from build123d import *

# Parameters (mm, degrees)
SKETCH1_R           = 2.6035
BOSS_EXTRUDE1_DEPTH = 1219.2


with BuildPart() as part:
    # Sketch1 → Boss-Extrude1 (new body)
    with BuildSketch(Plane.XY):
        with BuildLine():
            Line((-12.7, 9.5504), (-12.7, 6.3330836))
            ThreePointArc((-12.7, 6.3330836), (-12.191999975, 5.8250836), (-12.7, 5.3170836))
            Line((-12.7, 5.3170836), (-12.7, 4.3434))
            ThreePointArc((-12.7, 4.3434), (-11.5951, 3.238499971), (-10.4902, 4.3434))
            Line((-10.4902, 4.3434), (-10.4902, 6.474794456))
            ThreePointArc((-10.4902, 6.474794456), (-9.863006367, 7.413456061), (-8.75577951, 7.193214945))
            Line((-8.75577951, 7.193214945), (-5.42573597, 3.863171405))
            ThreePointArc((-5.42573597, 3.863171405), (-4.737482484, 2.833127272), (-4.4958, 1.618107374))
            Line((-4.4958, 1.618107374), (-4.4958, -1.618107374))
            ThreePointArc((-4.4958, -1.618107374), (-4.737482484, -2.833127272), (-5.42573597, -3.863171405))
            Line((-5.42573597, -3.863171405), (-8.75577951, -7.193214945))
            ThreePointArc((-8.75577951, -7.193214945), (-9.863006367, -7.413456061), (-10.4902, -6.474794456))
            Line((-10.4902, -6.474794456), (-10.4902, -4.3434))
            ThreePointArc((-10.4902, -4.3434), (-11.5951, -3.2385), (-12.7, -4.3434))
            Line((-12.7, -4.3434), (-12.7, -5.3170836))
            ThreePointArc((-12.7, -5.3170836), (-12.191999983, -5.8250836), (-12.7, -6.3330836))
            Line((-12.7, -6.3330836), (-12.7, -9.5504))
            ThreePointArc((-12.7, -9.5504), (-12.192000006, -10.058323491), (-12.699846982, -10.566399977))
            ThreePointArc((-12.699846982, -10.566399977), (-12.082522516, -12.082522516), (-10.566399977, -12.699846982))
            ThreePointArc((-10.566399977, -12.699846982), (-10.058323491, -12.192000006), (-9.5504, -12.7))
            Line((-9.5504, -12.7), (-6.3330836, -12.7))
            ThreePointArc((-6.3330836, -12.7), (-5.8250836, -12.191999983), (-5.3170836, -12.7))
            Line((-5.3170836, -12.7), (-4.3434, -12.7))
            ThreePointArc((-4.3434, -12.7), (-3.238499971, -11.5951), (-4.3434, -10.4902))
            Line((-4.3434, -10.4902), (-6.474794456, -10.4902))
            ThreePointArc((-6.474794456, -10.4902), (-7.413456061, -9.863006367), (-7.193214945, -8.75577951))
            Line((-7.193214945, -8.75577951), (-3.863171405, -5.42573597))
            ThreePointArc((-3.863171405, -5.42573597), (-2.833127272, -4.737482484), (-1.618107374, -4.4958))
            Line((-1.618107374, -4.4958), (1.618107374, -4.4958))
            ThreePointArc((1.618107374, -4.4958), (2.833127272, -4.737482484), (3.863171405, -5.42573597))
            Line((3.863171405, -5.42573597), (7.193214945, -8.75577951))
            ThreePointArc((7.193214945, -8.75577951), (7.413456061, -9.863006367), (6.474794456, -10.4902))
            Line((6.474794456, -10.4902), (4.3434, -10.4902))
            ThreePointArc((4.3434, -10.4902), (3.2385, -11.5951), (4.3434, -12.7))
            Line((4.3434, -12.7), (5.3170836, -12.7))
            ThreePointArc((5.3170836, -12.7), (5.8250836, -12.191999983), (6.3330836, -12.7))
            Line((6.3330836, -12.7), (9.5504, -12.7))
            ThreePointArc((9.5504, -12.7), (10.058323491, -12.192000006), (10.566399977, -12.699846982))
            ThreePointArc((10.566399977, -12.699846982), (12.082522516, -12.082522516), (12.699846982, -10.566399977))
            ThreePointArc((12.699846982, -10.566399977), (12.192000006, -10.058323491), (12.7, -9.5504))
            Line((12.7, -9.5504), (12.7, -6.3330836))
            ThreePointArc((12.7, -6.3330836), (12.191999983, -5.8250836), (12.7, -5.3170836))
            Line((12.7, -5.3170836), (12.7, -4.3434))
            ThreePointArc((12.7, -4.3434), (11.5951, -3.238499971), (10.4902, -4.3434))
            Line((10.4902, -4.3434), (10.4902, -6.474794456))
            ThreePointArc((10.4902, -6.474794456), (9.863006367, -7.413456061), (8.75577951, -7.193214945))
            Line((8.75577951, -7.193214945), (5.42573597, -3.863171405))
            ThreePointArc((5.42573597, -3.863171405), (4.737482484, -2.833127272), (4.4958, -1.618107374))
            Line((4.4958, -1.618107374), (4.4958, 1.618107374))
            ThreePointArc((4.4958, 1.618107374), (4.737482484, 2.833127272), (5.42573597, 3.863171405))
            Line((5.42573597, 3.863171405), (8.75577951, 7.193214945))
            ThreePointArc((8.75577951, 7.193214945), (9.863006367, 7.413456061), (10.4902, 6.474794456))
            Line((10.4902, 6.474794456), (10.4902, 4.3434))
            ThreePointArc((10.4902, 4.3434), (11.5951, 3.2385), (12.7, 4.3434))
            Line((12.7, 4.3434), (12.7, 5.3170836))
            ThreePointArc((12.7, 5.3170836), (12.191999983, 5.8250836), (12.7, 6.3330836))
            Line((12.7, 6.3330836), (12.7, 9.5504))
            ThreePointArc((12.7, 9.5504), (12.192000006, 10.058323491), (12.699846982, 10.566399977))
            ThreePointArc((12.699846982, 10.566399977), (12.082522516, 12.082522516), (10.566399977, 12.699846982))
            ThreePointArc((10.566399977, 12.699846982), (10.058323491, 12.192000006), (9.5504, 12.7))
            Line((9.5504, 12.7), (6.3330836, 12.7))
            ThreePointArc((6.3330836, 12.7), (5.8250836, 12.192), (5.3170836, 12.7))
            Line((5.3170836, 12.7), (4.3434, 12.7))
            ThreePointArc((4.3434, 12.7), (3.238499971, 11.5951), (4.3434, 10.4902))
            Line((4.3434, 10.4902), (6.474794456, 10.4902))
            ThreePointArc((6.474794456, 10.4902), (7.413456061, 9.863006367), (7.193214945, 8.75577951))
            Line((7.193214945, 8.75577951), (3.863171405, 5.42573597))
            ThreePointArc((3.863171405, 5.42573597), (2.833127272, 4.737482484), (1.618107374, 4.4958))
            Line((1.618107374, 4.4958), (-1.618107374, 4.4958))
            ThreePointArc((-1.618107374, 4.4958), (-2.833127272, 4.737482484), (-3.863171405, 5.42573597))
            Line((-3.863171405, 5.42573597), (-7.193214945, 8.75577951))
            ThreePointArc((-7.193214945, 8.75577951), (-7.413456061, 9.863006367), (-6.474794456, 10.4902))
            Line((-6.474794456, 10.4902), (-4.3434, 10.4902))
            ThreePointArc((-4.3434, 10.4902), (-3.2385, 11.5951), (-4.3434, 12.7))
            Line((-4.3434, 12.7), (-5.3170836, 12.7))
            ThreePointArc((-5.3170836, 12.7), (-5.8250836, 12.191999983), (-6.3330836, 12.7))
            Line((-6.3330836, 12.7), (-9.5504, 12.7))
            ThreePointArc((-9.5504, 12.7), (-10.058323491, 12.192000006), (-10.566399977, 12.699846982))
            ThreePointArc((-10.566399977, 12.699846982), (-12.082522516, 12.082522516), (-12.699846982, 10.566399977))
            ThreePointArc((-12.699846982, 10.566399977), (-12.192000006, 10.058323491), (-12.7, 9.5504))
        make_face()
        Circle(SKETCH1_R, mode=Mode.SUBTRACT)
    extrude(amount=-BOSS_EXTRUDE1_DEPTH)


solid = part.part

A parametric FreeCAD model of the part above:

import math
import FreeCAD as App
import Part
import Sketcher

V = App.Vector
Q = App.Units.Quantity

doc = App.newDocument("Part")
body = doc.addObject("PartDesign::Body", "Body")

sketch1 = body.newObject("Sketcher::SketchObject", "Sketch")
sketch1.AttachmentSupport = (doc.getObject("XY_Plane"), [""])
sketch1.MapMode = "FlatFace"
sketch1.addGeometry([
    Part.LineSegment(V(-12.7, 9.6, 0), V(-12.7, 6.3, 0)),
    Part.ArcOfCircle(Part.Circle(V(-12.7, 5.8, 0), V(0, 0, 1), 0.5), math.radians(-90), math.radians(90)),
    Part.LineSegment(V(-12.7, 5.3, 0), V(-12.7, 4.3, 0)),
    Part.ArcOfCircle(Part.Circle(V(-11.6, 4.3, 0), V(0, 0, 1), 1.1), math.radians(180), math.radians(360)),
    Part.LineSegment(V(-10.5, 4.3, 0), V(-10.5, 6.5, 0)),
    Part.ArcOfCircle(Part.Circle(V(-9.5, 6.5, 0), V(0, 0, 1), 1), math.radians(45), math.radians(180)),
    Part.LineSegment(V(-8.8, 7.2, 0), V(-5.4, 3.9, 0)),
    Part.ArcOfCircle(Part.Circle(V(-7.7, 1.6, 0), V(0, 0, 1), 3.2), math.radians(0), math.radians(45)),
    Part.LineSegment(V(-4.5, 1.6, 0), V(-4.5, -1.6, 0)),
    Part.ArcOfCircle(Part.Circle(V(-7.7, -1.6, 0), V(0, 0, 1), 3.2), math.radians(-45), math.radians(0)),
    Part.LineSegment(V(-5.4, -3.9, 0), V(-8.8, -7.2, 0)),
    Part.ArcOfCircle(Part.Circle(V(-9.5, -6.5, 0), V(0, 0, 1), 1), math.radians(180), math.radians(315)),
    Part.LineSegment(V(-10.5, -6.5, 0), V(-10.5, -4.3, 0)),
    Part.ArcOfCircle(Part.Circle(V(-11.6, -4.3, 0), V(0, 0, 1), 1.1), math.radians(0), math.radians(180)),
    Part.LineSegment(V(-12.7, -4.3, 0), V(-12.7, -5.3, 0)),
    Part.ArcOfCircle(Part.Circle(V(-12.7, -5.8, 0), V(0, 0, 1), 0.5), math.radians(-90), math.radians(90)),
    Part.LineSegment(V(-12.7, -6.3, 0), V(-12.7, -9.6, 0)),
    Part.ArcOfCircle(Part.Circle(V(-12.7, -10.1, 0), V(0, 0, 1), 0.5), math.radians(-90), math.radians(90)),
    Part.ArcOfCircle(Part.Circle(V(-10.6, -10.6, 0), V(0, 0, 1), 2.1), math.radians(179), math.radians(271)),
    Part.ArcOfCircle(Part.Circle(V(-10.1, -12.7, 0), V(0, 0, 1), 0.5), math.radians(0), math.radians(180)),
    Part.LineSegment(V(-9.6, -12.7, 0), V(-6.3, -12.7, 0)),
    Part.ArcOfCircle(Part.Circle(V(-5.8, -12.7, 0), V(0, 0, 1), 0.5), math.radians(0), math.radians(180)),
    Part.LineSegment(V(-5.3, -12.7, 0), V(-4.3, -12.7, 0)),
    Part.ArcOfCircle(Part.Circle(V(-4.3, -11.6, 0), V(0, 0, 1), 1.1), math.radians(-90), math.radians(90)),
    Part.LineSegment(V(-4.3, -10.5, 0), V(-6.5, -10.5, 0)),
    Part.ArcOfCircle(Part.Circle(V(-6.5, -9.5, 0), V(0, 0, 1), 1), math.radians(135), math.radians(270)),
    Part.LineSegment(V(-7.2, -8.8, 0), V(-3.9, -5.4, 0)),
    Part.ArcOfCircle(Part.Circle(V(-1.6, -7.7, 0), V(0, 0, 1), 3.2), math.radians(90), math.radians(135)),
    Part.LineSegment(V(-1.6, -4.5, 0), V(1.6, -4.5, 0)),
    Part.ArcOfCircle(Part.Circle(V(1.6, -7.7, 0), V(0, 0, 1), 3.2), math.radians(45), math.radians(90)),
    Part.LineSegment(V(3.9, -5.4, 0), V(7.2, -8.8, 0)),
    Part.ArcOfCircle(Part.Circle(V(6.5, -9.5, 0), V(0, 0, 1), 1), math.radians(-90), math.radians(45)),
    Part.LineSegment(V(6.5, -10.5, 0), V(4.3, -10.5, 0)),
    Part.ArcOfCircle(Part.Circle(V(4.3, -11.6, 0), V(0, 0, 1), 1.1), math.radians(90), math.radians(270)),
    Part.LineSegment(V(4.3, -12.7, 0), V(5.3, -12.7, 0)),
    Part.ArcOfCircle(Part.Circle(V(5.8, -12.7, 0), V(0, 0, 1), 0.5), math.radians(0), math.radians(180)),
    Part.LineSegment(V(6.3, -12.7, 0), V(9.6, -12.7, 0)),
    Part.ArcOfCircle(Part.Circle(V(10.1, -12.7, 0), V(0, 0, 1), 0.5), math.radians(0), math.radians(180)),
    Part.ArcOfCircle(Part.Circle(V(10.6, -10.6, 0), V(0, 0, 1), 2.1), math.radians(-91), math.radians(1)),
    Part.ArcOfCircle(Part.Circle(V(12.7, -10.1, 0), V(0, 0, 1), 0.5), math.radians(90), math.radians(270)),
    Part.LineSegment(V(12.7, -9.6, 0), V(12.7, -6.3, 0)),
    Part.ArcOfCircle(Part.Circle(V(12.7, -5.8, 0), V(0, 0, 1), 0.5), math.radians(90), math.radians(270)),
    Part.LineSegment(V(12.7, -5.3, 0), V(12.7, -4.3, 0)),
    Part.ArcOfCircle(Part.Circle(V(11.6, -4.3, 0), V(0, 0, 1), 1.1), math.radians(0), math.radians(180)),
    Part.LineSegment(V(10.5, -4.3, 0), V(10.5, -6.5, 0)),
    Part.ArcOfCircle(Part.Circle(V(9.5, -6.5, 0), V(0, 0, 1), 1), math.radians(-135), math.radians(0)),
    Part.LineSegment(V(8.8, -7.2, 0), V(5.4, -3.9, 0)),
    Part.ArcOfCircle(Part.Circle(V(7.7, -1.6, 0), V(0, 0, 1), 3.2), math.radians(180), math.radians(225)),
    Part.LineSegment(V(4.5, -1.6, 0), V(4.5, 1.6, 0)),
    Part.ArcOfCircle(Part.Circle(V(7.7, 1.6, 0), V(0, 0, 1), 3.2), math.radians(135), math.radians(180)),
    Part.LineSegment(V(5.4, 3.9, 0), V(8.8, 7.2, 0)),
    Part.ArcOfCircle(Part.Circle(V(9.5, 6.5, 0), V(0, 0, 1), 1), math.radians(0), math.radians(135)),
    Part.LineSegment(V(10.5, 6.5, 0), V(10.5, 4.3, 0)),
    Part.ArcOfCircle(Part.Circle(V(11.6, 4.3, 0), V(0, 0, 1), 1.1), math.radians(180), math.radians(360)),
    Part.LineSegment(V(12.7, 4.3, 0), V(12.7, 5.3, 0)),
    Part.ArcOfCircle(Part.Circle(V(12.7, 5.8, 0), V(0, 0, 1), 0.5), math.radians(90), math.radians(270)),
    Part.LineSegment(V(12.7, 6.3, 0), V(12.7, 9.6, 0)),
    Part.ArcOfCircle(Part.Circle(V(12.7, 10.1, 0), V(0, 0, 1), 0.5), math.radians(90), math.radians(270)),
    Part.ArcOfCircle(Part.Circle(V(10.6, 10.6, 0), V(0, 0, 1), 2.1), math.radians(-1), math.radians(91)),
    Part.ArcOfCircle(Part.Circle(V(10.1, 12.7, 0), V(0, 0, 1), 0.5), math.radians(180), math.radians(360)),
    Part.LineSegment(V(9.6, 12.7, 0), V(6.3, 12.7, 0)),
    Part.ArcOfCircle(Part.Circle(V(5.8, 12.7, 0), V(0, 0, 1), 0.5), math.radians(180), math.radians(360)),
    Part.LineSegment(V(5.3, 12.7, 0), V(4.3, 12.7, 0)),
    Part.ArcOfCircle(Part.Circle(V(4.3, 11.6, 0), V(0, 0, 1), 1.1), math.radians(90), math.radians(270)),
    Part.LineSegment(V(4.3, 10.5, 0), V(6.5, 10.5, 0)),
    Part.ArcOfCircle(Part.Circle(V(6.5, 9.5, 0), V(0, 0, 1), 1), math.radians(-45), math.radians(90)),
    Part.LineSegment(V(7.2, 8.8, 0), V(3.9, 5.4, 0)),
    Part.ArcOfCircle(Part.Circle(V(1.6, 7.7, 0), V(0, 0, 1), 3.2), math.radians(-90), math.radians(-45)),
    Part.LineSegment(V(1.6, 4.5, 0), V(-1.6, 4.5, 0)),
    Part.ArcOfCircle(Part.Circle(V(-1.6, 7.7, 0), V(0, 0, 1), 3.2), math.radians(-135), math.radians(-90)),
    Part.LineSegment(V(-3.9, 5.4, 0), V(-7.2, 8.8, 0)),
    Part.ArcOfCircle(Part.Circle(V(-6.5, 9.5, 0), V(0, 0, 1), 1), math.radians(90), math.radians(225)),
    Part.LineSegment(V(-6.5, 10.5, 0), V(-4.3, 10.5, 0)),
    Part.ArcOfCircle(Part.Circle(V(-4.3, 11.6, 0), V(0, 0, 1), 1.1), math.radians(-90), math.radians(90)),
    Part.LineSegment(V(-4.3, 12.7, 0), V(-5.3, 12.7, 0)),
    Part.ArcOfCircle(Part.Circle(V(-5.8, 12.7, 0), V(0, 0, 1), 0.5), math.radians(180), math.radians(360)),
    Part.LineSegment(V(-6.3, 12.7, 0), V(-9.6, 12.7, 0)),
    Part.ArcOfCircle(Part.Circle(V(-10.1, 12.7, 0), V(0, 0, 1), 0.5), math.radians(-180), math.radians(0)),
    Part.ArcOfCircle(Part.Circle(V(-10.6, 10.6, 0), V(0, 0, 1), 2.1), math.radians(89), math.radians(181)),
    Part.ArcOfCircle(Part.Circle(V(-12.7, 10.1, 0), V(0, 0, 1), 0.5), math.radians(-90), math.radians(90)),
    Part.Circle(V(0, 0, 0), V(0, 0, 1), 2.6),
], False)
sketch1.addConstraint([
    Sketcher.Constraint("Coincident", 0, 2, 1, 2),
    Sketcher.Constraint("Coincident", 1, 1, 2, 1),
    Sketcher.Constraint("Tangent", 2, 2, 3, 1),
    Sketcher.Constraint("Tangent", 3, 2, 4, 1),
    Sketcher.Constraint("Tangent", 4, 2, 5, 2),
    Sketcher.Constraint("Tangent", 5, 1, 6, 1),
    Sketcher.Constraint("Tangent", 6, 2, 7, 2),
    Sketcher.Constraint("Tangent", 7, 1, 8, 1),
    Sketcher.Constraint("Tangent", 8, 2, 9, 2),
    Sketcher.Constraint("Tangent", 9, 1, 10, 1),
    Sketcher.Constraint("Tangent", 10, 2, 11, 2),
    Sketcher.Constraint("Tangent", 11, 1, 12, 1),
    Sketcher.Constraint("Tangent", 12, 2, 13, 1),
    Sketcher.Constraint("Tangent", 13, 2, 14, 1),
    Sketcher.Constraint("Coincident", 14, 2, 15, 2),
    Sketcher.Constraint("Coincident", 15, 1, 16, 1),
    Sketcher.Constraint("Coincident", 16, 2, 17, 2),
    Sketcher.Constraint("Coincident", 17, 1, 18, 1),
    Sketcher.Constraint("Coincident", 18, 2, 19, 2),
    Sketcher.Constraint("Coincident", 19, 1, 20, 1),
    Sketcher.Constraint("Coincident", 20, 2, 21, 2),
    Sketcher.Constraint("Coincident", 21, 1, 22, 1),
    Sketcher.Constraint("Tangent", 22, 2, 23, 1),
    Sketcher.Constraint("Tangent", 23, 2, 24, 1),
    Sketcher.Constraint("Tangent", 24, 2, 25, 2),
    Sketcher.Constraint("Tangent", 25, 1, 26, 1),
    Sketcher.Constraint("Tangent", 26, 2, 27, 2),
    Sketcher.Constraint("Tangent", 27, 1, 28, 1),
    Sketcher.Constraint("Tangent", 28, 2, 29, 2),
    Sketcher.Constraint("Tangent", 29, 1, 30, 1),
    Sketcher.Constraint("Tangent", 30, 2, 31, 2),
    Sketcher.Constraint("Tangent", 31, 1, 32, 1),
    Sketcher.Constraint("Tangent", 32, 2, 33, 1),
    Sketcher.Constraint("Tangent", 33, 2, 34, 1),
    Sketcher.Constraint("Coincident", 34, 2, 35, 2),
    Sketcher.Constraint("Coincident", 35, 1, 36, 1),
    Sketcher.Constraint("Coincident", 36, 2, 37, 2),
    Sketcher.Constraint("Coincident", 37, 1, 38, 1),
    Sketcher.Constraint("Coincident", 38, 2, 39, 2),
    Sketcher.Constraint("Coincident", 39, 1, 40, 1),
    Sketcher.Constraint("Coincident", 40, 2, 41, 2),
    Sketcher.Constraint("Coincident", 41, 1, 42, 1),
    Sketcher.Constraint("Tangent", 42, 2, 43, 1),
    Sketcher.Constraint("Tangent", 43, 2, 44, 1),
    Sketcher.Constraint("Tangent", 44, 2, 45, 2),
    Sketcher.Constraint("Tangent", 45, 1, 46, 1),
    Sketcher.Constraint("Tangent", 46, 2, 47, 2),
    Sketcher.Constraint("Tangent", 47, 1, 48, 1),
    Sketcher.Constraint("Tangent", 48, 2, 49, 2),
    Sketcher.Constraint("Tangent", 49, 1, 50, 1),
    Sketcher.Constraint("Tangent", 50, 2, 51, 2),
    Sketcher.Constraint("Tangent", 51, 1, 52, 1),
    Sketcher.Constraint("Tangent", 52, 2, 53, 1),
    Sketcher.Constraint("Tangent", 53, 2, 54, 1),
    Sketcher.Constraint("Coincident", 54, 2, 55, 2),
    Sketcher.Constraint("Coincident", 55, 1, 56, 1),
    Sketcher.Constraint("Coincident", 56, 2, 57, 2),
    Sketcher.Constraint("Coincident", 57, 1, 58, 1),
    Sketcher.Constraint("Coincident", 58, 2, 59, 2),
    Sketcher.Constraint("Coincident", 59, 1, 60, 1),
    Sketcher.Constraint("Coincident", 60, 2, 61, 2),
    Sketcher.Constraint("Coincident", 61, 1, 62, 1),
    Sketcher.Constraint("Tangent", 62, 2, 63, 1),
    Sketcher.Constraint("Tangent", 63, 2, 64, 1),
    Sketcher.Constraint("Tangent", 64, 2, 65, 2),
    Sketcher.Constraint("Tangent", 65, 1, 66, 1),
    Sketcher.Constraint("Tangent", 66, 2, 67, 2),
    Sketcher.Constraint("Tangent", 67, 1, 68, 1),
    Sketcher.Constraint("Tangent", 68, 2, 69, 2),
    Sketcher.Constraint("Tangent", 69, 1, 70, 1),
    Sketcher.Constraint("Tangent", 70, 2, 71, 2),
    Sketcher.Constraint("Tangent", 71, 1, 72, 1),
    Sketcher.Constraint("Tangent", 72, 2, 73, 1),
    Sketcher.Constraint("Tangent", 73, 2, 74, 1),
    Sketcher.Constraint("Coincident", 74, 2, 75, 2),
    Sketcher.Constraint("Coincident", 75, 1, 76, 1),
    Sketcher.Constraint("Coincident", 76, 2, 77, 2),
    Sketcher.Constraint("Coincident", 77, 1, 78, 1),
    Sketcher.Constraint("Coincident", 78, 2, 79, 2),
    Sketcher.Constraint("Coincident", 79, 1, 0, 1),
    Sketcher.Constraint("Vertical", 0),
    Sketcher.Constraint("Vertical", 2),
    Sketcher.Constraint("Vertical", 4),
    Sketcher.Constraint("Vertical", 8),
    Sketcher.Constraint("Vertical", 12),
    Sketcher.Constraint("Vertical", 14),
    Sketcher.Constraint("Vertical", 16),
    Sketcher.Constraint("Horizontal", 20),
    Sketcher.Constraint("Horizontal", 22),
    Sketcher.Constraint("Horizontal", 24),
    Sketcher.Constraint("Horizontal", 28),
    Sketcher.Constraint("Horizontal", 32),
    Sketcher.Constraint("Horizontal", 34),
    Sketcher.Constraint("Horizontal", 36),
    Sketcher.Constraint("Vertical", 40),
    Sketcher.Constraint("Vertical", 42),
    Sketcher.Constraint("Vertical", 44),
    Sketcher.Constraint("Vertical", 48),
    Sketcher.Constraint("Vertical", 52),
    Sketcher.Constraint("Vertical", 54),
    Sketcher.Constraint("Vertical", 56),
    Sketcher.Constraint("Horizontal", 60),
    Sketcher.Constraint("Horizontal", 62),
    Sketcher.Constraint("Horizontal", 64),
    Sketcher.Constraint("Horizontal", 68),
    Sketcher.Constraint("Horizontal", 72),
    Sketcher.Constraint("Horizontal", 74),
    Sketcher.Constraint("Horizontal", 76),
    Sketcher.Constraint("Coincident", 80, 3, -1, 1),
    Sketcher.Constraint("Equal", 7, 9),
    Sketcher.Constraint("Equal", 5, 11),
    Sketcher.Constraint("Equal", 3, 13),
    Sketcher.Constraint("Equal", 1, 15),
    Sketcher.Constraint("Equal", 15, 17),
    Sketcher.Constraint("Equal", 17, 19),
    Sketcher.Constraint("Equal", 19, 21),
    Sketcher.Constraint("Equal", 13, 23),
    Sketcher.Constraint("Equal", 11, 25),
    Sketcher.Constraint("Equal", 9, 27),
    Sketcher.Constraint("Equal", 27, 29),
    Sketcher.Constraint("Equal", 25, 31),
    Sketcher.Constraint("Equal", 23, 33),
    Sketcher.Constraint("Equal", 21, 35),
    Sketcher.Constraint("Equal", 35, 37),
    Sketcher.Constraint("Equal", 18, 38),
    Sketcher.Constraint("Equal", 37, 39),
    Sketcher.Constraint("Equal", 39, 41),
    Sketcher.Constraint("Equal", 33, 43),
    Sketcher.Constraint("Equal", 31, 45),
    Sketcher.Constraint("Equal", 29, 47),
    Sketcher.Constraint("Equal", 47, 49),
    Sketcher.Constraint("Equal", 45, 51),
    Sketcher.Constraint("Equal", 43, 53),
    Sketcher.Constraint("Equal", 41, 55),
    Sketcher.Constraint("Equal", 55, 57),
    Sketcher.Constraint("Equal", 38, 58),
    Sketcher.Constraint("Equal", 57, 59),
    Sketcher.Constraint("Equal", 59, 61),
    Sketcher.Constraint("Equal", 53, 63),
    Sketcher.Constraint("Equal", 51, 65),
    Sketcher.Constraint("Equal", 49, 67),
    Sketcher.Constraint("Equal", 67, 69),
    Sketcher.Constraint("Equal", 65, 71),
    Sketcher.Constraint("Equal", 63, 73),
    Sketcher.Constraint("Equal", 61, 75),
    Sketcher.Constraint("Equal", 75, 77),
    Sketcher.Constraint("Equal", 58, 78),
    Sketcher.Constraint("Equal", 77, 79),
    Sketcher.Constraint("Symmetric", 1, 3, 41, 3, -1, 1),
    Sketcher.Constraint("Symmetric", 3, 3, 43, 3, -1, 1),
    Sketcher.Constraint("Symmetric", 7, 3, 47, 3, -1, 1),
    Sketcher.Constraint("Symmetric", 11, 3, 51, 3, -1, 1),
    Sketcher.Constraint("Symmetric", 15, 3, 55, 3, -1, 1),
    Sketcher.Constraint("Symmetric", 17, 3, 57, 3, -1, 1),
    Sketcher.Constraint("Symmetric", 18, 3, 58, 3, -1, 1),
    Sketcher.Constraint("Symmetric", 19, 3, 59, 3, -1, 1),
    Sketcher.Constraint("Symmetric", 21, 3, 61, 3, -1, 1),
    Sketcher.Constraint("Symmetric", 23, 3, 63, 3, -1, 1),
    Sketcher.Constraint("Symmetric", 27, 3, 67, 3, -1, 1),
    Sketcher.Constraint("Symmetric", 31, 3, 71, 3, -1, 1),
    Sketcher.Constraint("Symmetric", 35, 3, 75, 3, -1, 1),
    Sketcher.Constraint("Symmetric", 37, 3, 77, 3, -1, 1),
    Sketcher.Constraint("Symmetric", 38, 3, 78, 3, -1, 1),
    Sketcher.Constraint("Symmetric", 39, 3, 79, 3, -1, 1),
    Sketcher.Constraint("Symmetric", 25, 3, 31, 3, -2),
    Sketcher.Constraint("Symmetric", 21, 3, 35, 3, -2),
    Sketcher.Constraint("Symmetric", 19, 3, 37, 3, -2),
    Sketcher.Constraint("Symmetric", 18, 3, 38, 3, -2),
    Sketcher.Constraint("Symmetric", 17, 3, 39, 3, -2),
    Sketcher.Constraint("Symmetric", 15, 3, 41, 3, -2),
    Sketcher.Constraint("Symmetric", 13, 3, 43, 3, -2),
    Sketcher.Constraint("Symmetric", 10, 2, 45, 1, -2),
    Sketcher.Constraint("Symmetric", 6, 2, 49, 1, -2),
    Sketcher.Constraint("Symmetric", 66, 2, 69, 1, -2),
    Sketcher.Constraint("Perpendicular", 6, 10),
    Sketcher.Constraint("Parallel", 10, 26),
    Sketcher.Constraint("Perpendicular", 26, 30),
    Sketcher.Constraint("Horizontal", 19, 3, 21, 3),
    Sketcher.Constraint("Horizontal", 3, 3, 53, 3),
    Sketcher.Constraint("Horizontal", 37, 3, 19, 1),
    Sketcher.Constraint("Horizontal", 20, 2, 21, 1),
    Sketcher.Constraint("Horizontal", 34, 2, 35, 1),
    Sketcher.Constraint("Horizontal", 77, 3, 59, 1),
    Sketcher.Constraint("Horizontal", 74, 2, 75, 1),
    Sketcher.Constraint("Vertical", 15, 3, 17, 3),
    Sketcher.Constraint("Vertical", 33, 3, 63, 3),
    Sketcher.Constraint("Vertical", 23, 3, 73, 3),
    Sketcher.Constraint("Vertical", 79, 3, 0, 2),
    Sketcher.Constraint("Vertical", 0, 2, 1, 1),
    Sketcher.Constraint("Vertical", 14, 2, 15, 1),
    Sketcher.Constraint("Vertical", 57, 3, 39, 1),
    Sketcher.Constraint("Vertical", 54, 2, 55, 1),
    Sketcher.Constraint("Equal", 76, 0),
    Sketcher.Constraint("Equal", 74, 2),
    Sketcher.Constraint("Equal", 72, 4),
    Sketcher.Constraint("Equal", 68, 8),
    Sketcher.Constraint("Equal", 10, 26),
    Sketcher.Constraint("Radius", 1, Q("0.02 in")),
    Sketcher.Constraint("Radius", 5, Q("0.04 in")),
    Sketcher.Constraint("Diameter", 80, Q("0.205 in")),
    Sketcher.Constraint("Radius", 7, Q("0.125 in")),
    Sketcher.Constraint("Radius", 18, Q("0.083 in")),
    Sketcher.Constraint("DistanceX", 1, 3, -1, 1, Q("0.5 in")),
    Sketcher.Constraint("DistanceY", 19, 3, -1, 1, Q("0.5 in")),
    Sketcher.Constraint("Radius", 3, Q("0.0435 in")),
    Sketcher.Constraint("DistanceY", -1, 1, 3, 3, Q("0.171 in")),
    Sketcher.Constraint("DistanceX", 7, 3, -1, 1, Q("0.302 in")),
    Sketcher.Constraint("DistanceY", 17, 3, -1, 1, Q("0.396 in")),
    Sketcher.Constraint("DistanceX", 18, 3, -1, 1, Q("0.417 in")),
    Sketcher.Constraint("DistanceY", 18, 3, -1, 1, Q("0.417 in")),
    Sketcher.Constraint("DistanceX", 20, 1, 20, 2, Q("3.217316 mm")),
    Sketcher.Constraint("DistanceX", 24, 2, 24, 1, Q("2.131394 mm")),
])
pad1 = body.newObject("PartDesign::Pad", "Pad")
pad1.Profile = sketch1
pad1.Length = Q("48 in")
pad1.Reversed = True

doc.recompute()
